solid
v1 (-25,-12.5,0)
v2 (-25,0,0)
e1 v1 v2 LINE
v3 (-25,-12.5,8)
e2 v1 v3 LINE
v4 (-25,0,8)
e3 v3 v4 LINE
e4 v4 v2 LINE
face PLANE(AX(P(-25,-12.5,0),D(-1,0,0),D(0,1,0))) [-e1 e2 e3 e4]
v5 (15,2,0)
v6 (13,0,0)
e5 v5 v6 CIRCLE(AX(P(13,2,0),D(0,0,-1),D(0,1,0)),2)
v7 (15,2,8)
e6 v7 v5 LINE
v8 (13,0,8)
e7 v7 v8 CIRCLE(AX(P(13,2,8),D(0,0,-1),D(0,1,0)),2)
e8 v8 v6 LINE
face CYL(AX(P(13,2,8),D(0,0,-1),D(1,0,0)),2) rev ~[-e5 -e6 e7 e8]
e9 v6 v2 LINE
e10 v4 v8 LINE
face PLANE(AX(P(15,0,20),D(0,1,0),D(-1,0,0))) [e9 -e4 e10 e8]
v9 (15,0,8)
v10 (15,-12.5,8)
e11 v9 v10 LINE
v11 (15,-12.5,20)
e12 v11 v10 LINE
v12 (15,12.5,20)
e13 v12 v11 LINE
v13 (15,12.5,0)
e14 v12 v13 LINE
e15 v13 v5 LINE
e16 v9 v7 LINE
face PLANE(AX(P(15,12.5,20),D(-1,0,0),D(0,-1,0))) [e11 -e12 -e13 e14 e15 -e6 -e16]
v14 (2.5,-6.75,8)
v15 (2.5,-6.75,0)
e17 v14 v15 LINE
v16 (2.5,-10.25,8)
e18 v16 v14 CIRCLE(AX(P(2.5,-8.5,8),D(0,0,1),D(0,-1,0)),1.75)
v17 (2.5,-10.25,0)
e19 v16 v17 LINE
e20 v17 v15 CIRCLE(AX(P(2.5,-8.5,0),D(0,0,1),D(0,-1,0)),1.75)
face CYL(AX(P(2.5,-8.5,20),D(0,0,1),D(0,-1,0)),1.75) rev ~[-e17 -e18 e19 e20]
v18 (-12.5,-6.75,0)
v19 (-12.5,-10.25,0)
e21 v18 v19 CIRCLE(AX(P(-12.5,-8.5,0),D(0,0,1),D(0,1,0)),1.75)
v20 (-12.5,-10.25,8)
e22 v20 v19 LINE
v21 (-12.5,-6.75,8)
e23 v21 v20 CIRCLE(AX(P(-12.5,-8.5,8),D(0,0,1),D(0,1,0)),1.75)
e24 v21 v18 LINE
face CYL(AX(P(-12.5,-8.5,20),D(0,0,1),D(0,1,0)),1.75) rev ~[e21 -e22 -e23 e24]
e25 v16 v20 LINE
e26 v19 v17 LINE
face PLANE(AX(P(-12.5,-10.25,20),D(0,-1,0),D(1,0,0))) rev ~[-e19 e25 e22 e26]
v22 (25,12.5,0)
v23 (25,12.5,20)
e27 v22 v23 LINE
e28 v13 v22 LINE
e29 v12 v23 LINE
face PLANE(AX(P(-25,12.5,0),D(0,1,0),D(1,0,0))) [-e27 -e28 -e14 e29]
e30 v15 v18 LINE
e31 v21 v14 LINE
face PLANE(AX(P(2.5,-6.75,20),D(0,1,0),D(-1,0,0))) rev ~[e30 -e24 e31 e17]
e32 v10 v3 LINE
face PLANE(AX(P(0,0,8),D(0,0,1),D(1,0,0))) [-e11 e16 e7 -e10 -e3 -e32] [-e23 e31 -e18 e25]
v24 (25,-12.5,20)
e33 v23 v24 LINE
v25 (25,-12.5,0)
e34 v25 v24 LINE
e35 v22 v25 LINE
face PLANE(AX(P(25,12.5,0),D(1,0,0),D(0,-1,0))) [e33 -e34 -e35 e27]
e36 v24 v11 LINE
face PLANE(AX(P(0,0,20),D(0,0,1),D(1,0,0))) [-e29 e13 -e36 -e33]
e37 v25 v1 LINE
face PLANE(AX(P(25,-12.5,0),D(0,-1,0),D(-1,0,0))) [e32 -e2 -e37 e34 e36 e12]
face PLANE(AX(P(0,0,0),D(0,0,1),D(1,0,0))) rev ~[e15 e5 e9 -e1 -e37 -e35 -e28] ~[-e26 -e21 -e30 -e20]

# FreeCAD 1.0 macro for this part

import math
import FreeCAD as App
import Part
import Sketcher


def edges_at(feature, points):
    """Names of the edges that pass closest to the given points."""
    edges = feature.Shape.Edges
    near = lambda p: min(range(len(edges)), key=lambda i: edges[i].distToShape(Part.Vertex(*p))[0])
    return sorted({f"Edge{near(p) + 1}" for p in points})


def add_polygon(sketch, points):
    """Adds a closed chain of lines whose ends are joined by coincident constraints."""
    first, n = sketch.GeometryCount, len(points)
    for a, b in zip(points, points[1:] + points[:1]):
        sketch.addGeometry(Part.LineSegment(App.Vector(*a, 0), App.Vector(*b, 0)), False)
    for i in range(n):
        sketch.addConstraint(Sketcher.Constraint("Coincident", first + i, 2, first + (i + 1) % n, 1))

doc = App.newDocument("Part")
params = doc.addObject("Spreadsheet::Sheet", "Params")
for row, (alias, value) in enumerate([
    ("sketch1_width", "50 mm"),
    ("sketch1_height", "25 mm"),
    ("pad1_length", "20 mm"),
    ("sketch2_width", "15 mm"),
    ("sketch2_radius", "1.75 mm"),
    ("sketch3_width", "40 mm"),
    ("sketch3_height", "12.5 mm"),
    ("sketch4_width", "40 mm"),
    ("sketch4_height", "12.5 mm"),
    ("pocket3_length", "12 mm"),
    ("fillet_radius", "2 mm"),
], start=1):
    params.set(f"A{row}", alias)
    params.set(f"B{row}", "=" + value)
    params.setAlias(f"B{row}", alias)

body = doc.addObject("PartDesign::Body", "Body")

sketch1 = doc.addObject("Sketcher::SketchObject", "Sketch")
body.addObject(sketch1)
sketch1.AttachmentSupport = (doc.XY_Plane, [""])
sketch1.MapMode = "FlatFace"
add_polygon(sketch1, [(25, 12), (-25, 12), (-25, -12), (25, -12)])
sketch1.addConstraint([
    Sketcher.Constraint("Horizontal", 0),
    Sketcher.Constraint("Vertical", 1),
    Sketcher.Constraint("Horizontal", 2),
    Sketcher.Constraint("Vertical", 3),
    Sketcher.Constraint("Symmetric", 0, 2, 2, 2, -1, 1),
    Sketcher.Constraint("DistanceX", 0, 2, 0, 1, 50.0),
    Sketcher.Constraint("DistanceY", 1, 2, 1, 1, 25.0),
])
sketch1.setExpression("Constraints[9]", "Params.sketch1_width")
sketch1.setExpression("Constraints[10]", "Params.sketch1_height")
pad1 = doc.addObject("PartDesign::Pad", "Pad")
body.addObject(pad1)
pad1.Profile = sketch1
pad1.setExpression("Length", "Params.pad1_length")

sketch2 = doc.addObject("Sketcher::SketchObject", "Sketch001")
body.addObject(sketch2)
sketch2.AttachmentSupport = (doc.XY_Plane, [""])
sketch2.MapMode = "FlatFace"
sketch2.AttachmentOffset = App.Placement(App.Vector(0, 0, 20), App.Rotation())
sketch2.addGeometry([
    Part.ArcOfCircle(Part.Circle(App.Vector(2.5, -8.5, 0), App.Vector(0, 0, 1), 1.8), math.radians(-90), math.radians(90)),
    Part.LineSegment(App.Vector(2.5, -6.8, 0), App.Vector(-12.5, -6.8, 0)),
    Part.ArcOfCircle(Part.Circle(App.Vector(-12.5, -8.5, 0), App.Vector(0, 0, 1), 1.8), math.radians(90), math.radians(270)),
    Part.LineSegment(App.Vector(-12.5, -10.2, 0), App.Vector(2.5, -10.2, 0)),
], False)
sketch2.addConstraint([
    Sketcher.Constraint("Tangent", 0, 2, 1, 1),
    Sketcher.Constraint("Tangent", 1, 2, 2, 1),
    Sketcher.Constraint("Tangent", 2, 2, 3, 1),
    Sketcher.Constraint("Tangent", 3, 2, 0, 1),
    Sketcher.Constraint("Horizontal", 1),
    Sketcher.Constraint("Horizontal", 3),
    Sketcher.Constraint("DistanceX", 1, 2, 1, 1, 15.0),
    Sketcher.Constraint("Radius", 0, 1.75),
    Sketcher.Constraint("DistanceX", -1, 1, 0, 3, 2.5),
    Sketcher.Constraint("DistanceY", 0, 3, -1, 1, 8.5),
])
sketch2.setExpression("Constraints[6]", "Params.sketch2_width")
sketch2.setExpression("Constraints[7]", "Params.sketch2_radius")
pocket1 = doc.addObject("PartDesign::Pocket", "Pocket")
body.addObject(pocket1)
pocket1.Profile = sketch2
pocket1.Type = "ThroughAll"

sketch3 = doc.addObject("Sketcher::SketchObject", "Sketch002")
body.addObject(sketch3)
sketch3.AttachmentSupport = (doc.XY_Plane, [""])
sketch3.MapMode = "FlatFace"
sketch3.AttachmentOffset = App.Placement(App.Vector(0, 0, 20), App.Rotation())
add_polygon(sketch3, [(-25, 0), (15, 0), (15, 12), (-25, 12)])
sketch3.addConstraint([
    Sketcher.Constraint("Horizontal", 0),
    Sketcher.Constraint("Vertical", 1),
    Sketcher.Constraint("Horizontal", 2),
    Sketcher.Constraint("Vertical", 3),
    Sketcher.Constraint("PointOnObject", 0, 2, -1),
    Sketcher.Constraint("DistanceX", 0, 1, 0, 2, 40.0),
    Sketcher.Constraint("DistanceY", 1, 1, 1, 2, 12.5),
    Sketcher.Constraint("DistanceX", -1, 1, 0, 2, 15.0),
])
sketch3.setExpression("Constraints[9]", "Params.sketch3_width")
sketch3.setExpression("Constraints[10]", "Params.sketch3_height")
pocket2 = doc.addObject("PartDesign::Pocket", "Pocket001")
body.addObject(pocket2)
pocket2.Profile = sketch3
pocket2.Type = "ThroughAll"

sketch4 = doc.addObject("Sketcher::SketchObject", "Sketch003")
body.addObject(sketch4)
sketch4.AttachmentSupport = (doc.XY_Plane, [""])
sketch4.MapMode = "FlatFace"
sketch4.AttachmentOffset = App.Placement(App.Vector(0, 0, 20), App.Rotation())
add_polygon(sketch4, [(-25, -12), (15, -12), (15, 0), (-25, 0)])
sketch4.addConstraint([
    Sketcher.Constraint("Horizontal", 0),
    Sketcher.Constraint("Vertical", 1),
    Sketcher.Constraint("Horizontal", 2),
    Sketcher.Constraint("Vertical", 3),
    Sketcher.Constraint("PointOnObject", 1, 2, -1),
    Sketcher.Constraint("DistanceX", 0, 1, 0, 2, 40.0),
    Sketcher.Constraint("DistanceY", 1, 1, 1, 2, 12.5),
    Sketcher.Constraint("DistanceX", -1, 1, 0, 2, 15.0),
])
sketch4.setExpression("Constraints[9]", "Params.sketch4_width")
sketch4.setExpression("Constraints[10]", "Params.sketch4_height")
pocket3 = doc.addObject("PartDesign::Pocket", "Pocket002")
body.addObject(pocket3)
pocket3.Profile = sketch4
pocket3.setExpression("Length", "Params.pocket3_length")
doc.recompute()

fillet = doc.addObject("PartDesign::Fillet", "Fillet")
body.addObject(fillet)
fillet.Base = (pocket3, edges_at(pocket3, [(15, 0, 4)]))
fillet.setExpression("Radius", "Params.fillet_radius")

doc.recompute()
